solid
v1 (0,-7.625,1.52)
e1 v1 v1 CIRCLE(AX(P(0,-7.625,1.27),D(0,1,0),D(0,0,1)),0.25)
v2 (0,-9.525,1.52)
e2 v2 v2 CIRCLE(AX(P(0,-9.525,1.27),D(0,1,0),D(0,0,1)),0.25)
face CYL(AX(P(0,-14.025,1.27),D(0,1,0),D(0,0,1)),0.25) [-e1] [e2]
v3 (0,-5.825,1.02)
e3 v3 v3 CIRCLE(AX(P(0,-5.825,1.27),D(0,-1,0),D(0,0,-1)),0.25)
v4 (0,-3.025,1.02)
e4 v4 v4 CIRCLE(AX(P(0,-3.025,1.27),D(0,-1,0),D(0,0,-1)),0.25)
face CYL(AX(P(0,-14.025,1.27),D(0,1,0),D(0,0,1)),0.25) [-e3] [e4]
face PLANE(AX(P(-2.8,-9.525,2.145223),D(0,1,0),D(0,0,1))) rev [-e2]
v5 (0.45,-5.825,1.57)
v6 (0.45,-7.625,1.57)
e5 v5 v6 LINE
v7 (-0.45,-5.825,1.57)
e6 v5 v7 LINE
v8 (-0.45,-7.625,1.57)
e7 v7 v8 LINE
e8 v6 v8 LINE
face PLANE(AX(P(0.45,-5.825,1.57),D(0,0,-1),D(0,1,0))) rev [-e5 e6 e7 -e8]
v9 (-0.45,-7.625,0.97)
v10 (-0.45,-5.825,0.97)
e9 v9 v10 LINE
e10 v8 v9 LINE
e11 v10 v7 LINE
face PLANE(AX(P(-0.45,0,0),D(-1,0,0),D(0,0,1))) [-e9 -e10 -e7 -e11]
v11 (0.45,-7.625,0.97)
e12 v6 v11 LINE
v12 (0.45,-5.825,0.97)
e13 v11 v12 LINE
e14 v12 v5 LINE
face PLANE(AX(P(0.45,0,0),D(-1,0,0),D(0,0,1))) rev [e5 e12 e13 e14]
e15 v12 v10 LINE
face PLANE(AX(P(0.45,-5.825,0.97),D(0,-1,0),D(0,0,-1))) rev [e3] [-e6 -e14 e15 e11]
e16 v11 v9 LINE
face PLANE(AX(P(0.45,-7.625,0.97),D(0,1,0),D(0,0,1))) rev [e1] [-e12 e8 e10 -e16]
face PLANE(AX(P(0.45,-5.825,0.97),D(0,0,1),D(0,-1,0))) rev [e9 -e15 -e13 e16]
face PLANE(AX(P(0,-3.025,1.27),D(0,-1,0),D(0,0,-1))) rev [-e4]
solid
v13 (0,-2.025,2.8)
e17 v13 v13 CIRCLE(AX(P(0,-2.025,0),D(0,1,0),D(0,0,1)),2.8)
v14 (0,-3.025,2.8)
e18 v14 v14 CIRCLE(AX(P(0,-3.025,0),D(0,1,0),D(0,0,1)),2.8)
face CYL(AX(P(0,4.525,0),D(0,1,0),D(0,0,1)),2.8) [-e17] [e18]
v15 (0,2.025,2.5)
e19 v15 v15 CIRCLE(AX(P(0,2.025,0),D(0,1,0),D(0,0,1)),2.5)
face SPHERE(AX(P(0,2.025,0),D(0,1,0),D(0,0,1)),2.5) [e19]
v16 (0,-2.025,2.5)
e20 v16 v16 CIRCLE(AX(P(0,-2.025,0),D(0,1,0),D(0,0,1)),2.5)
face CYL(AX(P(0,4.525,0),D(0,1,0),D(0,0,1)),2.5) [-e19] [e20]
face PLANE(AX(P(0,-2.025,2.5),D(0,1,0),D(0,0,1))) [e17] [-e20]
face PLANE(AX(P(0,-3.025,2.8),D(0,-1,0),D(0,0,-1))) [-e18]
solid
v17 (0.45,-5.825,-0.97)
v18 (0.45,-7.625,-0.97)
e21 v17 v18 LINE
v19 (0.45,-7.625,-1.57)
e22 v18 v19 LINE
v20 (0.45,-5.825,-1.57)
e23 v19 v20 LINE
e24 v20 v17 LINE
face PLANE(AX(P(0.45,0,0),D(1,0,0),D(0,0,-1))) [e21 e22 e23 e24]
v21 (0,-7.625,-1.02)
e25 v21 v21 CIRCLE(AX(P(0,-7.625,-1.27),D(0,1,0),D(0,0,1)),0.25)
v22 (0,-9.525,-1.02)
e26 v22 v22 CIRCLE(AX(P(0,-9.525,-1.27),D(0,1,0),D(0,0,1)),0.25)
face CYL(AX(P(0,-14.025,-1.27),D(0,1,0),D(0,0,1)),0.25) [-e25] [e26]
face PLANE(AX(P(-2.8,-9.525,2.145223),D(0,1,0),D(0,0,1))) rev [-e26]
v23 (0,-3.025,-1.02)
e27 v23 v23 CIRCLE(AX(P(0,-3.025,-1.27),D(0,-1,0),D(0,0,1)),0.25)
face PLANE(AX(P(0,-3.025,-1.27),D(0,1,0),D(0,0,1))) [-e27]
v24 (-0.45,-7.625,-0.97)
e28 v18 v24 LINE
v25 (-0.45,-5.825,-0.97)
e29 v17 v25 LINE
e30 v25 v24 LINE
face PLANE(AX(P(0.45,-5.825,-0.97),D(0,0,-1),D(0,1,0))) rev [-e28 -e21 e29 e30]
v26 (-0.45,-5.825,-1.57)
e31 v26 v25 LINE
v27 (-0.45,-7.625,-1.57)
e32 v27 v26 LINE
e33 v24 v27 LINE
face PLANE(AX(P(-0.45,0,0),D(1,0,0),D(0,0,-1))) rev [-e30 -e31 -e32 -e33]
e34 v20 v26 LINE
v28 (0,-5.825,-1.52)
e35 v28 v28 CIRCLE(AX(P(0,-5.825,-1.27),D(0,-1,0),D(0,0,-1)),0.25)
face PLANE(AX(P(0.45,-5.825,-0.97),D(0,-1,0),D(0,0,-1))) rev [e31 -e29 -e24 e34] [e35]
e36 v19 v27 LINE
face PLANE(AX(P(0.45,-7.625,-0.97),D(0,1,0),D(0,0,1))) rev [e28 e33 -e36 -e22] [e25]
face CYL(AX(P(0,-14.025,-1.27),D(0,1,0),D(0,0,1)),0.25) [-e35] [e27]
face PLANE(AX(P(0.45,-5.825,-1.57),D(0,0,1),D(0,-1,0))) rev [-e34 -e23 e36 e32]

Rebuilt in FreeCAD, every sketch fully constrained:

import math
import FreeCAD as App
import Part
import Sketcher
Q = App.Units.Quantity

doc = App.newDocument("Part")
body = doc.addObject("PartDesign::Body", "Body")

sketch1 = body.newObject("Sketcher::SketchObject", "Sketch")
sketch1.AttachmentSupport = (doc.getObject("YZ_Plane"), [""])
sketch1.MapMode = "FlatFace"
sketch1.addGeometry(Part.LineSegment(App.Vector(2.02, 2.5, 0), App.Vector(-2.02, 2.5, 0)), False)
sketch1.addGeometry(Part.LineSegment(App.Vector(-2.02, 2.5, 0), App.Vector(-2.02, 2.8, 0)), False)
sketch1.addGeometry(Part.LineSegment(App.Vector(-2.02, 2.8, 0), App.Vector(-3.02, 2.8, 0)), False)
sketch1.addGeometry(Part.LineSegment(App.Vector(-3.02, 2.8, 0), App.Vector(-3.02, 0, 0)), False)
sketch1.addGeometry(Part.LineSegment(App.Vector(-3.02, 0, 0), App.Vector(4.53, 0, 0)), False)
sketch1.addGeometry(Part.ArcOfCircle(Part.Circle(App.Vector(2.02, 0, 0), App.Vector(0, 0, 1), 2.5), math.radians(0), math.radians(90)), False)
sketch1.addConstraint(Sketcher.Constraint("Coincident", 0, 2, 1, 1))
sketch1.addConstraint(Sketcher.Constraint("Coincident", 1, 2, 2, 1))
sketch1.addConstraint(Sketcher.Constraint("Coincident", 2, 2, 3, 1))
sketch1.addConstraint(Sketcher.Constraint("Coincident", 3, 2, 4, 1))
sketch1.addConstraint(Sketcher.Constraint("Coincident", 4, 2, 5, 1))
sketch1.addConstraint(Sketcher.Constraint("Tangent", 5, 2, 0, 1))
sketch1.addConstraint(Sketcher.Constraint("Horizontal", 0))
sketch1.addConstraint(Sketcher.Constraint("Vertical", 1))
sketch1.addConstraint(Sketcher.Constraint("Horizontal", 2))
sketch1.addConstraint(Sketcher.Constraint("Vertical", 3))
sketch1.addConstraint(Sketcher.Constraint("Horizontal", 4))
sketch1.addConstraint(Sketcher.Constraint("PointOnObject", 5, 3, -1))
sketch1.addConstraint(Sketcher.Constraint("PointOnObject", 3, 2, -1))
sketch1.addConstraint(Sketcher.Constraint("Radius", 5, Q("2.5 mm")))
sketch1.addConstraint(Sketcher.Constraint("DistanceX", 2, 2, 2, 1, Q("1 mm")))
sketch1.addConstraint(Sketcher.Constraint("DistanceY", 1, 1, 1, 2, Q("0.3 mm")))
sketch1.addConstraint(Sketcher.Constraint("DistanceX", 0, 2, 0, 1, Q("4.05 mm")))
sketch1.addConstraint(Sketcher.Constraint("DistanceX", -1, 1, 5, 3, Q("2.025 mm")))
revolution = body.newObject("PartDesign::Revolution", "Revolution")
revolution.Profile = sketch1
revolution.ReferenceAxis = (sketch1, ["H_Axis"])
revolution.Angle = 360
body2 = doc.addObject("PartDesign::Body", "Body001")

sketch2 = body2.newObject("Sketcher::SketchObject", "Sketch001")
sketch2.AttachmentSupport = (doc.getObject("XZ_Plane001"), [""])
sketch2.MapMode = "FlatFace"
sketch2.AttachmentOffset = App.Placement(App.Vector(0, 0, 3.025), App.Rotation())
sketch2.addGeometry(Part.Circle(App.Vector(0, 1.27, 0), App.Vector(0, 0, 1), 0.25), False)
sketch2.addConstraint(Sketcher.Constraint("PointOnObject", 0, 3, -2))
sketch2.addConstraint(Sketcher.Constraint("Diameter", 0, Q("0.5 mm")))
sketch2.addConstraint(Sketcher.Constraint("DistanceY", -1, 1, 0, 3, Q("1.27 mm")))
pad1 = body2.newObject("PartDesign::Pad", "Pad")
pad1.Profile = sketch2
pad1.Length = 11
body3 = doc.addObject("PartDesign::Body", "Body002")

sketch3 = body3.newObject("Sketcher::SketchObject", "Sketch002")
sketch3.AttachmentSupport = (doc.getObject("XZ_Plane002"), [""])
sketch3.MapMode = "FlatFace"
sketch3.AttachmentOffset = App.Placement(App.Vector(0, 0, 3.025), App.Rotation())
sketch3.addGeometry(Part.Circle(App.Vector(0, -1.27, 0), App.Vector(0, 0, 1), 0.25), False)
sketch3.addConstraint(Sketcher.Constraint("PointOnObject", 0, 3, -2))
sketch3.addConstraint(Sketcher.Constraint("Diameter", 0, Q("0.5 mm")))
sketch3.addConstraint(Sketcher.Constraint("DistanceY", 0, 3, -1, 1, Q("1.27 mm")))
pad2 = body3.newObject("PartDesign::Pad", "Pad001")
pad2.Profile = sketch3
pad2.Length = 11
body2.AllowCompound = True
doc.recompute()

boolean = body2.newObject("PartDesign::Boolean", "Boolean")
boolean.Type = "Fuse"
boolean.addObjects([body3])

sketch4 = body2.newObject("Sketcher::SketchObject", "Sketch003")
sketch4.AttachmentSupport = (doc.getObject("YZ_Plane001"), [""])
sketch4.MapMode = "FlatFace"
sketch4.addGeometry(Part.LineSegment(App.Vector(-5.8, -1, 0), App.Vector(-7.6, -1, 0)), False)
sketch4.addGeometry(Part.LineSegment(App.Vector(-7.6, -1, 0), App.Vector(-7.6, -1.6, 0)), False)
sketch4.addGeometry(Part.LineSegment(App.Vector(-7.6, -1.6, 0), App.Vector(-5.8, -1.6, 0)), False)
sketch4.addGeometry(Part.LineSegment(App.Vector(-5.8, -1.6, 0), App.Vector(-5.8, -1, 0)), False)
sketch4.addGeometry(Part.LineSegment(App.Vector(-5.8, 1.6, 0), App.Vector(-7.6, 1.6, 0)), False)
sketch4.addGeometry(Part.LineSegment(App.Vector(-7.6, 1.6, 0), App.Vector(-7.6, 1, 0)), False)
sketch4.addGeometry(Part.LineSegment(App.Vector(-7.6, 1, 0), App.Vector(-5.8, 1, 0)), False)
sketch4.addGeometry(Part.LineSegment(App.Vector(-5.8, 1, 0), App.Vector(-5.8, 1.6, 0)), False)
sketch4.addConstraint(Sketcher.Constraint("Coincident", 0, 2, 1, 1))
sketch4.addConstraint(Sketcher.Constraint("Coincident", 1, 2, 2, 1))
sketch4.addConstraint(Sketcher.Constraint("Coincident", 2, 2, 3, 1))
sketch4.addConstraint(Sketcher.Constraint("Coincident", 3, 2, 0, 1))
sketch4.addConstraint(Sketcher.Constraint("Coincident", 4, 2, 5, 1))
sketch4.addConstraint(Sketcher.Constraint("Coincident", 5, 2, 6, 1))
sketch4.addConstraint(Sketcher.Constraint("Coincident", 6, 2, 7, 1))
sketch4.addConstraint(Sketcher.Constraint("Coincident", 7, 2, 4, 1))
sketch4.addConstraint(Sketcher.Constraint("Horizontal", 0))
sketch4.addConstraint(Sketcher.Constraint("Vertical", 1))
sketch4.addConstraint(Sketcher.Constraint("Horizontal", 2))
sketch4.addConstraint(Sketcher.Constraint("Vertical", 3))
sketch4.addConstraint(Sketcher.Constraint("Horizontal", 4))
sketch4.addConstraint(Sketcher.Constraint("Vertical", 5))
sketch4.addConstraint(Sketcher.Constraint("Horizontal", 6))
sketch4.addConstraint(Sketcher.Constraint("Vertical", 7))
sketch4.addConstraint(Sketcher.Constraint("Symmetric", 1, 2, 4, 2, -1))
sketch4.addConstraint(Sketcher.Constraint("Symmetric", 3, 2, 6, 2, -1))
sketch4.addConstraint(Sketcher.Constraint("DistanceX", 0, 2, 0, 1, Q("1.8 mm")))
sketch4.addConstraint(Sketcher.Constraint("DistanceY", 1, 2, 1, 1, Q("0.6 mm")))
sketch4.addConstraint(Sketcher.Constraint("DistanceY", 0, 2, -1, 1, Q("0.97 mm")))
sketch4.addConstraint(Sketcher.Constraint("DistanceX", 0, 2, -1, 1, Q("7.625 mm")))
pad3 = body2.newObject("PartDesign::Pad", "Pad002")
pad3.Profile = sketch4
pad3.Length = 0.9
pad3.Midplane = True

sketch5 = body2.newObject("Sketcher::SketchObject", "Sketch004")
sketch5.AttachmentSupport = (doc.getObject("YZ_Plane001"), [""])
sketch5.MapMode = "FlatFace"
sketch5.addGeometry(Part.LineSegment(App.Vector(-10, 2, 0), App.Vector(-16, 2, 0)), False)
sketch5.addGeometry(Part.LineSegment(App.Vector(-16, 2, 0), App.Vector(-16, -3, 0)), False)
sketch5.addGeometry(Part.LineSegment(App.Vector(-16, -3, 0), App.Vector(-10, -3, 0)), False)
sketch5.addGeometry(Part.LineSegment(App.Vector(-10, -3, 0), App.Vector(-10, 2, 0)), False)
sketch5.addConstraint(Sketcher.Constraint("Coincident", 0, 2, 1, 1))
sketch5.addConstraint(Sketcher.Constraint("Coincident", 1, 2, 2, 1))
sketch5.addConstraint(Sketcher.Constraint("Coincident", 2, 2, 3, 1))
sketch5.addConstraint(Sketcher.Constraint("Coincident", 3, 2, 0, 1))
sketch5.addConstraint(Sketcher.Constraint("Horizontal", 0))
sketch5.addConstraint(Sketcher.Constraint("Vertical", 1))
sketch5.addConstraint(Sketcher.Constraint("Horizontal", 2))
sketch5.addConstraint(Sketcher.Constraint("Vertical", 3))
sketch5.addConstraint(Sketcher.Constraint("DistanceX", 2, 2, -1, 1, Q("9.525 mm")))
sketch5.addConstraint(Sketcher.Constraint("DistanceY", 1, 2, 1, 1, Q("5.04389 mm")))
sketch5.addConstraint(Sketcher.Constraint("DistanceX", 0, 2, 0, 1, Q("6.467062 mm")))
sketch5.addConstraint(Sketcher.Constraint("DistanceY", -1, 1, 0, 2, Q("2.145223 mm")))
pocket1 = body2.newObject("PartDesign::Pocket", "Pocket")
pocket1.Profile = sketch5
pocket1.Type = "ThroughAll"
pocket1.Midplane = True

doc.recompute()
